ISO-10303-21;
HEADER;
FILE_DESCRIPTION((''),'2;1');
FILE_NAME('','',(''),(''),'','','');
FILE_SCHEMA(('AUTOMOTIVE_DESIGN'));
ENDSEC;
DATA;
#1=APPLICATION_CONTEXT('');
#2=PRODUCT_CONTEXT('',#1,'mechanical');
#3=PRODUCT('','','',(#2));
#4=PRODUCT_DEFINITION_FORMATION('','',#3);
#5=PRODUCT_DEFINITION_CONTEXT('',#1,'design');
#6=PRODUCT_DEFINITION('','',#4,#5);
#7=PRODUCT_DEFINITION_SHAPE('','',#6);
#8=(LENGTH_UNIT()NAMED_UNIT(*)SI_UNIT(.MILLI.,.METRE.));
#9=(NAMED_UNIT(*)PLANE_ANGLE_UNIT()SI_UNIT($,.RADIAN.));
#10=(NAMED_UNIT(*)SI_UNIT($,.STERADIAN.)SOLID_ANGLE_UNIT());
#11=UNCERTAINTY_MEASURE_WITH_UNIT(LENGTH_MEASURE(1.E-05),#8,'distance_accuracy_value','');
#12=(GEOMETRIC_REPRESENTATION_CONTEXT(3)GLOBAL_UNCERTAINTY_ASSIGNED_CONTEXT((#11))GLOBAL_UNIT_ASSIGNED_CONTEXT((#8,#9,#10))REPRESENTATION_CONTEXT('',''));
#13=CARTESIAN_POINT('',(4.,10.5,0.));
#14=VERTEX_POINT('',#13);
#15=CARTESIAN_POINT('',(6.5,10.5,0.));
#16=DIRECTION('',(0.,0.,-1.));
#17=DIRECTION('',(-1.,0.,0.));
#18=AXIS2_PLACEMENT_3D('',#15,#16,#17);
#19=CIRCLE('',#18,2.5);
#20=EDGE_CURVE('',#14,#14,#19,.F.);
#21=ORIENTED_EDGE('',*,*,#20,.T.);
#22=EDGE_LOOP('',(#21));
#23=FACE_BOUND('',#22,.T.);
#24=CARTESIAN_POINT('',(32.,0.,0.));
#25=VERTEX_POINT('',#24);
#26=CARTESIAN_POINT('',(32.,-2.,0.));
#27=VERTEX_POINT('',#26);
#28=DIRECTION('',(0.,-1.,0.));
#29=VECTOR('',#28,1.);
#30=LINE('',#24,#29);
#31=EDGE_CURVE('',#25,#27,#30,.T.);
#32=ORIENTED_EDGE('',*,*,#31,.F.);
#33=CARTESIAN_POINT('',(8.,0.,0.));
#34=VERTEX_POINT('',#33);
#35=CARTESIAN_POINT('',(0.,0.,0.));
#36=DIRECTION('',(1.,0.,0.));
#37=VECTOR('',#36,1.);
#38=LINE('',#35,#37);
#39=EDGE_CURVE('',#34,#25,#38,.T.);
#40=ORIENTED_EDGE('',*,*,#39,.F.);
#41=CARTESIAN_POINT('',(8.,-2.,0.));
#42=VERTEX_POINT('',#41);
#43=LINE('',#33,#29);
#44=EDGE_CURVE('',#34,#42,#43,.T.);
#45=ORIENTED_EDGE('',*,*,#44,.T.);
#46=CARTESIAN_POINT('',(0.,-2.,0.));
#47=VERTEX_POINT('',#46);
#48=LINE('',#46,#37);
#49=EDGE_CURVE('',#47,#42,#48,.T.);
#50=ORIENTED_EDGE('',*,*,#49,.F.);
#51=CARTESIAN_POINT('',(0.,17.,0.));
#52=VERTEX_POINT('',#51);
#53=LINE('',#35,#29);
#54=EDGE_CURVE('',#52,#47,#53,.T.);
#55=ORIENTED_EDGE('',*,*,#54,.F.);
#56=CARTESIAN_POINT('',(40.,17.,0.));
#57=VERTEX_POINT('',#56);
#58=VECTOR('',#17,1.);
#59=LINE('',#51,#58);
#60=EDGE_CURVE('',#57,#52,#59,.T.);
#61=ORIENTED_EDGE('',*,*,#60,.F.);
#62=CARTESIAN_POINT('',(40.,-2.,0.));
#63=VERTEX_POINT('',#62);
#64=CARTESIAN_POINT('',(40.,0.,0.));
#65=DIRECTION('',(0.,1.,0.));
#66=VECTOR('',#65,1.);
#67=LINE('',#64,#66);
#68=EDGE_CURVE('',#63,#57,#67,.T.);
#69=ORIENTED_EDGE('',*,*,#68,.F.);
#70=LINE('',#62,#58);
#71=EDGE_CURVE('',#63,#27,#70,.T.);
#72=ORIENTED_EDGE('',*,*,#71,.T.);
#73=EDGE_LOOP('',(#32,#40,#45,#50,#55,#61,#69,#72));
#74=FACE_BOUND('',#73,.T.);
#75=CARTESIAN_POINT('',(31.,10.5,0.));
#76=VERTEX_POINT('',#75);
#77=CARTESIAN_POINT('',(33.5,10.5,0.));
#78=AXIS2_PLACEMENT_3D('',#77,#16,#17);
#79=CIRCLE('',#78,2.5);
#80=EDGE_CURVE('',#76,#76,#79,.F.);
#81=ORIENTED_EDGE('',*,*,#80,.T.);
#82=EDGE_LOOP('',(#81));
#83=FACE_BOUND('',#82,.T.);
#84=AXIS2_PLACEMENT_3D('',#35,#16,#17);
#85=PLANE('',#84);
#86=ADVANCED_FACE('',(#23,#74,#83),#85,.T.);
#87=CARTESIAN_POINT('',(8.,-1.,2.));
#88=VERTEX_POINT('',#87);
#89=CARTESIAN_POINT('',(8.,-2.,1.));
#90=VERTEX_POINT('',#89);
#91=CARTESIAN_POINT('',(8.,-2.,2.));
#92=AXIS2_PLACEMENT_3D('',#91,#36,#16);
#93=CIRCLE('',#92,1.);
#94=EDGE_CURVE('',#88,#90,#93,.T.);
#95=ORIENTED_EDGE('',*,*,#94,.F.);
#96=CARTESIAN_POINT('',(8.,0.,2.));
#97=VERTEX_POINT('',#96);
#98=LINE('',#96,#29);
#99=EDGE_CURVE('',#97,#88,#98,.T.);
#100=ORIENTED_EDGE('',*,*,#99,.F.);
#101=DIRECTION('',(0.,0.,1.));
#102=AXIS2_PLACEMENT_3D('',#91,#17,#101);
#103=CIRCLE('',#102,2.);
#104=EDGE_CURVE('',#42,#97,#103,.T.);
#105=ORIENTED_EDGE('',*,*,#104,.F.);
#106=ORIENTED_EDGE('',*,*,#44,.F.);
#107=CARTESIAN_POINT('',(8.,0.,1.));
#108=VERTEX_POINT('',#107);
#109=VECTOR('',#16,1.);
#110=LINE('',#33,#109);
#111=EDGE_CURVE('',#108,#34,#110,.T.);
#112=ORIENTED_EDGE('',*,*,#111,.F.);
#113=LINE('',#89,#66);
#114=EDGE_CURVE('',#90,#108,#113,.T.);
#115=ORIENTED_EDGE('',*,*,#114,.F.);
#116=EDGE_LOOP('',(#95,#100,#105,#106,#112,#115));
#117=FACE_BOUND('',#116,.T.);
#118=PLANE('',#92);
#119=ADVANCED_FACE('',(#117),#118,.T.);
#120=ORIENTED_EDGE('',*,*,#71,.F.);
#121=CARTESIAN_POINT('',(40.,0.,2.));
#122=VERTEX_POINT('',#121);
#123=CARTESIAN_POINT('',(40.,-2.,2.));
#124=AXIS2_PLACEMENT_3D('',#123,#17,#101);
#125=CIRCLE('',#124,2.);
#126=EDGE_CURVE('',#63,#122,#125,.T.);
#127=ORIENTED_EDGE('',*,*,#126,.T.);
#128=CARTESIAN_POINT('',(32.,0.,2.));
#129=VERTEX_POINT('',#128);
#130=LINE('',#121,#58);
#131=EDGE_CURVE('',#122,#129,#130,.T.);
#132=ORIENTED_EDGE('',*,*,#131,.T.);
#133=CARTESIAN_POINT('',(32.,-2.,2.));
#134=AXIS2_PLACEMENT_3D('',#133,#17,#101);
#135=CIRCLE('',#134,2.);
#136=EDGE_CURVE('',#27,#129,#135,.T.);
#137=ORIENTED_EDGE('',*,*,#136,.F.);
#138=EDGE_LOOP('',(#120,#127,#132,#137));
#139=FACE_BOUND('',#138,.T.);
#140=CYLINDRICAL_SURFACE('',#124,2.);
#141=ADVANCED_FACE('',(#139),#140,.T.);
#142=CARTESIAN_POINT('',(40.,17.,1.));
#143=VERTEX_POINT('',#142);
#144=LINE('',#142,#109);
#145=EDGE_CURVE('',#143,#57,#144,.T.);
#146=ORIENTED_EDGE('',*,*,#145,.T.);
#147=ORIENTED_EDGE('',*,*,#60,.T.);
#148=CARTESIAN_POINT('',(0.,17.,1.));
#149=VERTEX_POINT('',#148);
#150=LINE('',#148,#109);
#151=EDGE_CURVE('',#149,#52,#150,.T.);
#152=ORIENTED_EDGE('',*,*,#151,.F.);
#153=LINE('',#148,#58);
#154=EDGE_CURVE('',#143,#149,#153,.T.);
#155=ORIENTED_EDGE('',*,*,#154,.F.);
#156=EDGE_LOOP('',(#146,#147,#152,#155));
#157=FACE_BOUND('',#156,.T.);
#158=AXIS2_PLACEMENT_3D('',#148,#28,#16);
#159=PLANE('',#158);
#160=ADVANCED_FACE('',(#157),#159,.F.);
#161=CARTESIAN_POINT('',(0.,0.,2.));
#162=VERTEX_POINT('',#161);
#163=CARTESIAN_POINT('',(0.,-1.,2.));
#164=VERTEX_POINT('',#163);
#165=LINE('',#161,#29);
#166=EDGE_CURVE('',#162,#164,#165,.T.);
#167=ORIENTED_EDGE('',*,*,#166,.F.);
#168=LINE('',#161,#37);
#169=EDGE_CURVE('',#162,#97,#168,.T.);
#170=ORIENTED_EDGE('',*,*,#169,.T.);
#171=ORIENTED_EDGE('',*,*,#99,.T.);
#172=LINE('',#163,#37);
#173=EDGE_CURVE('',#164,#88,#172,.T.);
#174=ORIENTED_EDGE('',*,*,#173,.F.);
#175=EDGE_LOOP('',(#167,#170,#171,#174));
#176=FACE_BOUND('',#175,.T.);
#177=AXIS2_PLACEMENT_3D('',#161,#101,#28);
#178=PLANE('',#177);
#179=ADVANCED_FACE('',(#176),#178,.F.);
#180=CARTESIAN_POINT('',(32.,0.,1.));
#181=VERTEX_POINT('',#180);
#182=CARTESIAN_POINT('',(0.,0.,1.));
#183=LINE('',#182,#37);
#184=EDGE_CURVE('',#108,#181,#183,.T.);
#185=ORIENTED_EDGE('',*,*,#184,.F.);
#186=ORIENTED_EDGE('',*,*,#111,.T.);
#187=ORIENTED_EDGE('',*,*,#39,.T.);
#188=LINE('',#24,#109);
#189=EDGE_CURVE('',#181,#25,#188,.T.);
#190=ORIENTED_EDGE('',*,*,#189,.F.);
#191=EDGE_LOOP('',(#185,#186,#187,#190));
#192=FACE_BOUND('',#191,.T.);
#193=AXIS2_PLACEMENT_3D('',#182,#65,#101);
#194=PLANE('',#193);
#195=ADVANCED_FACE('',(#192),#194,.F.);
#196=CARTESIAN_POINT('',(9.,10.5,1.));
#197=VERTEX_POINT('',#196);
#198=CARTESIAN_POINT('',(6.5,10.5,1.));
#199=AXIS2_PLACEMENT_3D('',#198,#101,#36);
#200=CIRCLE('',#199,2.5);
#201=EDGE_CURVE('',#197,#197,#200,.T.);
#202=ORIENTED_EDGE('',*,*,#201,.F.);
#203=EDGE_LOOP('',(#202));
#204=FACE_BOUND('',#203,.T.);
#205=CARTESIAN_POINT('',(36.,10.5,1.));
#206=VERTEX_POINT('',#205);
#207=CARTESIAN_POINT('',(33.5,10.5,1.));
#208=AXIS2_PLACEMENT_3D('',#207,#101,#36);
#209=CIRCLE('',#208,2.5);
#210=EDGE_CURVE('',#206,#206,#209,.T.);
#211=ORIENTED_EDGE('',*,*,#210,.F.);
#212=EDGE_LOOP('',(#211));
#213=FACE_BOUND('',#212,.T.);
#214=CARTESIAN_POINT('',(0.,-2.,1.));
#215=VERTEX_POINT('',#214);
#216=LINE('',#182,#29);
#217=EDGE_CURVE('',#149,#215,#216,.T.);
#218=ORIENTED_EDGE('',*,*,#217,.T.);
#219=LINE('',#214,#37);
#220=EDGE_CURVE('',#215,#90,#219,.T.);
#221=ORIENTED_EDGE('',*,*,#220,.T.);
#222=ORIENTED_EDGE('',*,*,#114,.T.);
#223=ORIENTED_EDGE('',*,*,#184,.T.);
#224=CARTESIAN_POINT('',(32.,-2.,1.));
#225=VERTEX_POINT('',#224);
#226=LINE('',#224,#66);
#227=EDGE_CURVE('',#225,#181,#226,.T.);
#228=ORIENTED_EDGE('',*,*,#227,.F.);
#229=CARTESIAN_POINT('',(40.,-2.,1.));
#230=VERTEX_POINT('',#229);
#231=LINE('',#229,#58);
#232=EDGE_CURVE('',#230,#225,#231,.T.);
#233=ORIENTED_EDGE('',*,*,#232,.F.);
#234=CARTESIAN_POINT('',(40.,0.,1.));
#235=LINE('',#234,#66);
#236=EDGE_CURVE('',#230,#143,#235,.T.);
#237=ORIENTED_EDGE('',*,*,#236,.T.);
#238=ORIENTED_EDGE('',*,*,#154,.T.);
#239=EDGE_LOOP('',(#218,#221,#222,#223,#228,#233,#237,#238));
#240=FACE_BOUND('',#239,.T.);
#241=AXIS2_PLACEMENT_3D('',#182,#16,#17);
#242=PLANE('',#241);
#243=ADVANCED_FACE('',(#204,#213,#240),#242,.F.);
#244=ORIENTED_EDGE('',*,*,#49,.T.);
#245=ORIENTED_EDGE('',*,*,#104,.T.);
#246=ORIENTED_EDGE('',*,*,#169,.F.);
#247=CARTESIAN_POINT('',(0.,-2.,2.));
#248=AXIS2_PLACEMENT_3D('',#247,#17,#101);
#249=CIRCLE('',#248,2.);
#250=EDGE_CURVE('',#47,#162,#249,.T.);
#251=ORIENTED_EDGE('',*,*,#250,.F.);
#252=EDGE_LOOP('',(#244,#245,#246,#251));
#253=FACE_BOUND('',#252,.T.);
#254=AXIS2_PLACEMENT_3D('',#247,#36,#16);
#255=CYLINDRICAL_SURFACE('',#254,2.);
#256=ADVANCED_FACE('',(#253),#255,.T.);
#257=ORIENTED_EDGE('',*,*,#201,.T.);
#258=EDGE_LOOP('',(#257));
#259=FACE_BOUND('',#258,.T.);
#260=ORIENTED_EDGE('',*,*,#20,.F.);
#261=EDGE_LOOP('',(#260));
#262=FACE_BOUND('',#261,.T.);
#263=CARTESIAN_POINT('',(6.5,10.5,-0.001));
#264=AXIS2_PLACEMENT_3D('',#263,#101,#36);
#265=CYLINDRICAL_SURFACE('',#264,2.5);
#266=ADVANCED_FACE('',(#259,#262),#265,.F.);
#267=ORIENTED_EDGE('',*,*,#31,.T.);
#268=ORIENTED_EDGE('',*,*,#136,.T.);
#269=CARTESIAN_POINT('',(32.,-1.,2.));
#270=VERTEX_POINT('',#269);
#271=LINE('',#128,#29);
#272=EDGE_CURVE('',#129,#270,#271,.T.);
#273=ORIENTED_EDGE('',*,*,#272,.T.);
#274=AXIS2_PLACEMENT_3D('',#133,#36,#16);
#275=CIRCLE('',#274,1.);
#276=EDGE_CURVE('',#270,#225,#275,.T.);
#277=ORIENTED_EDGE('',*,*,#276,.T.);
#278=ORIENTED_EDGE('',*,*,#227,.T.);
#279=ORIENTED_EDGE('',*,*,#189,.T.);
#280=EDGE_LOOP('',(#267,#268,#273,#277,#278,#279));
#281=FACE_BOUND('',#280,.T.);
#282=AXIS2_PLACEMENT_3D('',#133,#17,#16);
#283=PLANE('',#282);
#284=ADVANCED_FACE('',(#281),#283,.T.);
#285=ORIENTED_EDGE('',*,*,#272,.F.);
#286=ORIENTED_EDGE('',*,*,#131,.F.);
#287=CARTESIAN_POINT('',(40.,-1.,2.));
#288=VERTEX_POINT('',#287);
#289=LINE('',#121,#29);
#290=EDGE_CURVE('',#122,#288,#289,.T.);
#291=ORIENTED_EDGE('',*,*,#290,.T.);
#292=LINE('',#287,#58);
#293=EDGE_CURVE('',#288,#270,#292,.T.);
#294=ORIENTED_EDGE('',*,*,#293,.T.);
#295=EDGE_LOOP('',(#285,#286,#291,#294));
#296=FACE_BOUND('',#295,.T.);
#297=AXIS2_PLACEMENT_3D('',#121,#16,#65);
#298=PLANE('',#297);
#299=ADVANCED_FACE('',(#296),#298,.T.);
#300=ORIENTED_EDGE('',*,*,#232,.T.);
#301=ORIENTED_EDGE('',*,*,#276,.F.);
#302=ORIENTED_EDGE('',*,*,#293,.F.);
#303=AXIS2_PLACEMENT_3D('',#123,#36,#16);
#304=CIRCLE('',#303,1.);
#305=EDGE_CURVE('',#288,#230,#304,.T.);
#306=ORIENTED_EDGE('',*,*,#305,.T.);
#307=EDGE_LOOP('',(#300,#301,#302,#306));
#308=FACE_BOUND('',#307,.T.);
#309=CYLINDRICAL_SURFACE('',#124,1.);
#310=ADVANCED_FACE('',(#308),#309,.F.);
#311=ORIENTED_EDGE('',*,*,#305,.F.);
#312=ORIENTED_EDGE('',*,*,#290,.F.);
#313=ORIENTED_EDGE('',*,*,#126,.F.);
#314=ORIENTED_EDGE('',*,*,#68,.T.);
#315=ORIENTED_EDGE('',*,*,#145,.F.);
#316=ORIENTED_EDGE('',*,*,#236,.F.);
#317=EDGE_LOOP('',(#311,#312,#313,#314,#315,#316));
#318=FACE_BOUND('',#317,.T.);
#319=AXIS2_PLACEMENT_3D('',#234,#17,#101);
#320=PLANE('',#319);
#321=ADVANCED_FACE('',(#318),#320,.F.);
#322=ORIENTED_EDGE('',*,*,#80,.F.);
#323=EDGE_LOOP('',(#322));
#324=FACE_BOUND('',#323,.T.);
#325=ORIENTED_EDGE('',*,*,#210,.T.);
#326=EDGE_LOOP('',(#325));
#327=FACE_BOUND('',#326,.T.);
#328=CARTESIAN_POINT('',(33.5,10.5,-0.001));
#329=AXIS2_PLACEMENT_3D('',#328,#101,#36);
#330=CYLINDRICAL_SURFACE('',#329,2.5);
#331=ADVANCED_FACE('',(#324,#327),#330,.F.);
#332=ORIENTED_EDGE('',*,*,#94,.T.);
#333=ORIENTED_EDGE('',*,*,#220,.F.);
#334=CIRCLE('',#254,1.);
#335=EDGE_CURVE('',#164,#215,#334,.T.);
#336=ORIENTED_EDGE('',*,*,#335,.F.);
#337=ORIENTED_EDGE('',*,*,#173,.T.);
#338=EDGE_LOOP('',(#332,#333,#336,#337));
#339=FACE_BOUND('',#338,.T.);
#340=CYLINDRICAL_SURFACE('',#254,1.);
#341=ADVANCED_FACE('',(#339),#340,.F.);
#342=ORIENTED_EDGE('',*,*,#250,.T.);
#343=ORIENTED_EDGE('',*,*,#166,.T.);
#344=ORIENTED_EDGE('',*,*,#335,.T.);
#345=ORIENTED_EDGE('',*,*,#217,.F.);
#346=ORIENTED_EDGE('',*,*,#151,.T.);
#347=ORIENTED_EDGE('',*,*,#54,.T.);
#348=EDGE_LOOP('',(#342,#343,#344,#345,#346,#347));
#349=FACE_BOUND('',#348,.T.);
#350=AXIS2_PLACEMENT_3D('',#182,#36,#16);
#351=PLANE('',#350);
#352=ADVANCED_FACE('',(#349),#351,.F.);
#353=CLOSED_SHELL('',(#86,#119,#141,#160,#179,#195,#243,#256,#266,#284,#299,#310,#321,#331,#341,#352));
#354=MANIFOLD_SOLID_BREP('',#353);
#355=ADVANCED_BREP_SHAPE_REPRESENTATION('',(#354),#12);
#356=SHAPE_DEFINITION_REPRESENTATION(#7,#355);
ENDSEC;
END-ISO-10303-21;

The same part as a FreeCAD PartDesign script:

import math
import FreeCAD as App
import Part
import Sketcher
Q = App.Units.Quantity

doc = App.newDocument("Part")
body = doc.addObject("PartDesign::Body", "Body")

sketch1 = doc.addObject("Sketcher::SketchObject", "Sketch")
body.addObject(sketch1)
sketch1.AttachmentSupport = (doc.XY_Plane, [""])
sketch1.MapMode = "FlatFace"
sketch1.addGeometry([
    Part.LineSegment(App.Vector(0, 17, 0), App.Vector(0, 0, 0)),
    Part.LineSegment(App.Vector(0, 0, 0), App.Vector(40, 0, 0)),
    Part.LineSegment(App.Vector(40, 0, 0), App.Vector(40, 17, 0)),
    Part.LineSegment(App.Vector(40, 17, 0), App.Vector(0, 17, 0)),
], False)
sketch1.addConstraint([
    Sketcher.Constraint("Coincident", 0, 2, 1, 1),
    Sketcher.Constraint("Coincident", 1, 2, 2, 1),
    Sketcher.Constraint("Coincident", 2, 2, 3, 1),
    Sketcher.Constraint("Coincident", 3, 2, 0, 1),
    Sketcher.Constraint("Vertical", 0),
    Sketcher.Constraint("Horizontal", 1),
    Sketcher.Constraint("Vertical", 2),
    Sketcher.Constraint("Horizontal", 3),
    Sketcher.Constraint("Coincident", 0, 2, -1, 1),
    Sketcher.Constraint("DistanceX", 1, 1, 1, 2, Q("40 mm")),
    Sketcher.Constraint("DistanceY", 0, 2, 0, 1, Q("17 mm")),
])
pad1 = doc.addObject("PartDesign::Pad", "Pad")
body.addObject(pad1)
pad1.Profile = sketch1
pad1.Length = 1

sketch2 = doc.addObject("Sketcher::SketchObject", "Sketch001")
body.addObject(sketch2)
sketch2.AttachmentSupport = (doc.XY_Plane, [""])
sketch2.MapMode = "FlatFace"
sketch2.AttachmentOffset = App.Placement(App.Vector(0, 0, 1), App.Rotation())
sketch2.addGeometry(Part.Circle(App.Vector(6.5, 10.5, 0), App.Vector(0, 0, 1), 2.5), False)
sketch2.addConstraint([
    Sketcher.Constraint("Diameter", 0, Q("5 mm")),
    Sketcher.Constraint("DistanceX", -1, 1, 0, 3, Q("6.5 mm")),
    Sketcher.Constraint("DistanceY", -1, 1, 0, 3, Q("10.5 mm")),
])
pocket1 = doc.addObject("PartDesign::Pocket", "Pocket")
body.addObject(pocket1)
pocket1.Profile = sketch2
pocket1.Type = "UpToFirst"

sketch3 = doc.addObject("Sketcher::SketchObject", "Sketch002")
body.addObject(sketch3)
sketch3.AttachmentSupport = (doc.XY_Plane, [""])
sketch3.MapMode = "FlatFace"
sketch3.AttachmentOffset = App.Placement(App.Vector(0, 0, 1), App.Rotation())
sketch3.addGeometry(Part.Circle(App.Vector(33.5, 10.5, 0), App.Vector(0, 0, 1), 2.5), False)
sketch3.addConstraint([
    Sketcher.Constraint("Diameter", 0, Q("5 mm")),
    Sketcher.Constraint("DistanceX", -1, 1, 0, 3, Q("33.5 mm")),
    Sketcher.Constraint("DistanceY", -1, 1, 0, 3, Q("10.5 mm")),
])
pocket2 = doc.addObject("PartDesign::Pocket", "Pocket001")
body.addObject(pocket2)
pocket2.Profile = sketch3
pocket2.Type = "UpToFirst"

sketch4 = doc.addObject("Sketcher::SketchObject", "Sketch003")
body.addObject(sketch4)
sketch4.AttachmentSupport = (doc.YZ_Plane, [""])
sketch4.MapMode = "FlatFace"
sketch4.AttachmentOffset = App.Placement(App.Vector(0, 0, 8), App.Rotation())
sketch4.addGeometry([
    Part.LineSegment(App.Vector(0, 0, 0), App.Vector(-2, 0, 0)),
    Part.ArcOfCircle(Part.Circle(App.Vector(-2, 2, 0), App.Vector(0, 0, 1), 2), math.radians(0), math.radians(270)),
    Part.LineSegment(App.Vector(0, 2, 0), App.Vector(-1, 2, 0)),
    Part.ArcOfCircle(Part.Circle(App.Vector(-2, 2, 0), App.Vector(0, 0, 1), 1), math.radians(0), math.radians(270)),
    Part.LineSegment(App.Vector(-2, 1, 0), App.Vector(0, 1, 0)),
    Part.LineSegment(App.Vector(0, 1, 0), App.Vector(0, 0, 0)),
], False)
sketch4.addConstraint([
    Sketcher.Constraint("Tangent", 0, 2, 1, 2),
    Sketcher.Constraint("Coincident", 1, 1, 2, 1),
    Sketcher.Constraint("Coincident", 2, 2, 3, 1),
    Sketcher.Constraint("Tangent", 3, 2, 4, 1),
    Sketcher.Constraint("Coincident", 4, 2, 5, 1),
    Sketcher.Constraint("Coincident", 5, 2, 0, 1),
    Sketcher.Constraint("Horizontal", 0),
    Sketcher.Constraint("Horizontal", 2),
    Sketcher.Constraint("Horizontal", 4),
    Sketcher.Constraint("Vertical", 5),
    Sketcher.Constraint("Coincident", 5, 2, -1, 1),
    Sketcher.Constraint("Coincident", 3, 3, 1, 3),
    Sketcher.Constraint("PointOnObject", 1, 1, -2),
    Sketcher.Constraint("Horizontal", 3, 3, 1, 1),
    Sketcher.Constraint("Radius", 1, Q("2 mm")),
    Sketcher.Constraint("Radius", 3, Q("1 mm")),
])
pad2 = doc.addObject("PartDesign::Pad", "Pad001")
body.addObject(pad2)
pad2.Profile = sketch4
pad2.Length = 8
pad2.Reversed = True
doc.recompute()

datumplane = doc.addObject("PartDesign::Plane", "DatumPlane")
body.addObject(datumplane)
datumplane.AttachmentSupport = (doc.YZ_Plane, [""])
datumplane.MapMode = "FlatFace"
datumplane.AttachmentOffset = App.Placement(App.Vector(0, 0, 20), App.Rotation())
mirrored = doc.addObject("PartDesign::Mirrored", "Mirrored")
body.addObject(mirrored)
mirrored.Originals = [pad2]
mirrored.MirrorPlane = (datumplane, [""])
body.Tip = mirrored

doc.recompute()
